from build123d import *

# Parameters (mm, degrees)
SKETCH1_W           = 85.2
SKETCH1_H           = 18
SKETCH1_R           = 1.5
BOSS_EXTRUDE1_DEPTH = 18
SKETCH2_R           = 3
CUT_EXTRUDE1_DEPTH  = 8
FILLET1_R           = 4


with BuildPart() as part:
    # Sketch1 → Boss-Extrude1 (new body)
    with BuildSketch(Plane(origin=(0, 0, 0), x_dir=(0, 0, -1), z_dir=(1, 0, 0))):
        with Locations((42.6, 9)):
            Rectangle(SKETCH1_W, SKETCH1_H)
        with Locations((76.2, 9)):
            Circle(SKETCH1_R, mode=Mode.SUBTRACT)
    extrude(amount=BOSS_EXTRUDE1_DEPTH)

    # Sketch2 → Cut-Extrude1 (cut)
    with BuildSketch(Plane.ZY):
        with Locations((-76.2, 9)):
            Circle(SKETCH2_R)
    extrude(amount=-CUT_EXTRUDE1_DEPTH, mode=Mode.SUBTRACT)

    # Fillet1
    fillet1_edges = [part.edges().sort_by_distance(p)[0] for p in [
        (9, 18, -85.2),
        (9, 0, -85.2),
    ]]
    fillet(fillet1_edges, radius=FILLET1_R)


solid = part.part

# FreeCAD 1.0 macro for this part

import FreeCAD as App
import Part
import Sketcher

V = App.Vector


def edges_at(feature, points):
    """Names of the edges that pass closest to the given points."""
    edges = feature.Shape.Edges
    near = lambda p: min(range(len(edges)), key=lambda i: edges[i].distToShape(Part.Vertex(*p))[0])
    return sorted({f"Edge{near(p) + 1}" for p in points})

doc = App.newDocument("Part")
body = doc.addObject("PartDesign::Body", "Body")

sketch1 = body.newObject("Sketcher::SketchObject", "Sketch")
sketch1.AttachmentSupport = (doc.getObject("YZ_Plane"), [""])
sketch1.MapMode = "FlatFace"
sketch1.addGeometry([
    Part.LineSegment(V(18, 0, 0), V(0, 0, 0)),
    Part.LineSegment(V(0, 0, 0), V(0, -85.2, 0)),
    Part.LineSegment(V(0, -85.2, 0), V(18, -85.2, 0)),
    Part.LineSegment(V(18, -85.2, 0), V(18, 0, 0)),
    Part.Circle(V(9, -76.2, 0), V(0, 0, 1), 1.5),
], False)
sketch1.addConstraint([
    Sketcher.Constraint("Coincident", 0, 2, 1, 1),
    Sketcher.Constraint("Coincident", 1, 2, 2, 1),
    Sketcher.Constraint("Coincident", 2, 2, 3, 1),
    Sketcher.Constraint("Coincident", 3, 2, 0, 1),
    Sketcher.Constraint("Horizontal", 0),
    Sketcher.Constraint("Vertical", 1),
    Sketcher.Constraint("Horizontal", 2),
    Sketcher.Constraint("Vertical", 3),
    Sketcher.Constraint("Coincident", 0, 2, -1, 1),
    Sketcher.Constraint("Diameter", 4, 3.0),
    Sketcher.Constraint("DistanceX", 0, 2, 0, 1, 18.0),
    Sketcher.Constraint("DistanceY", 1, 2, 1, 1, 85.2),
    Sketcher.Constraint("DistanceX", -1, 1, 4, 3, 9.0),
    Sketcher.Constraint("DistanceY", 1, 2, 4, 3, 9.0),
])
pad1 = body.newObject("PartDesign::Pad", "Pad")
pad1.Profile = sketch1
pad1.Length = 18

sketch2 = body.newObject("Sketcher::SketchObject", "Sketch001")
sketch2.AttachmentSupport = (doc.getObject("YZ_Plane"), [""])
sketch2.MapMode = "FlatFace"
sketch2.addGeometry(Part.Circle(V(9, -76.2, 0), V(0, 0, 1), 3), False)
sketch2.addConstraint([
    Sketcher.Constraint("Diameter", 0, 6.0),
    Sketcher.Constraint("DistanceX", -1, 1, 0, 3, 9.0),
    Sketcher.Constraint("DistanceY", 0, 3, -1, 1, 76.2),
])
pocket1 = body.newObject("PartDesign::Pocket", "Pocket")
pocket1.Profile = sketch2
pocket1.Length = 8
pocket1.Reversed = True
doc.recompute()

fillet = body.newObject("PartDesign::Fillet", "Fillet")
fillet.Base = (pocket1, edges_at(pocket1, [(9, 18, -85.2), (9, 0, -85.2)]))
fillet.Radius = 4

doc.recompute()
